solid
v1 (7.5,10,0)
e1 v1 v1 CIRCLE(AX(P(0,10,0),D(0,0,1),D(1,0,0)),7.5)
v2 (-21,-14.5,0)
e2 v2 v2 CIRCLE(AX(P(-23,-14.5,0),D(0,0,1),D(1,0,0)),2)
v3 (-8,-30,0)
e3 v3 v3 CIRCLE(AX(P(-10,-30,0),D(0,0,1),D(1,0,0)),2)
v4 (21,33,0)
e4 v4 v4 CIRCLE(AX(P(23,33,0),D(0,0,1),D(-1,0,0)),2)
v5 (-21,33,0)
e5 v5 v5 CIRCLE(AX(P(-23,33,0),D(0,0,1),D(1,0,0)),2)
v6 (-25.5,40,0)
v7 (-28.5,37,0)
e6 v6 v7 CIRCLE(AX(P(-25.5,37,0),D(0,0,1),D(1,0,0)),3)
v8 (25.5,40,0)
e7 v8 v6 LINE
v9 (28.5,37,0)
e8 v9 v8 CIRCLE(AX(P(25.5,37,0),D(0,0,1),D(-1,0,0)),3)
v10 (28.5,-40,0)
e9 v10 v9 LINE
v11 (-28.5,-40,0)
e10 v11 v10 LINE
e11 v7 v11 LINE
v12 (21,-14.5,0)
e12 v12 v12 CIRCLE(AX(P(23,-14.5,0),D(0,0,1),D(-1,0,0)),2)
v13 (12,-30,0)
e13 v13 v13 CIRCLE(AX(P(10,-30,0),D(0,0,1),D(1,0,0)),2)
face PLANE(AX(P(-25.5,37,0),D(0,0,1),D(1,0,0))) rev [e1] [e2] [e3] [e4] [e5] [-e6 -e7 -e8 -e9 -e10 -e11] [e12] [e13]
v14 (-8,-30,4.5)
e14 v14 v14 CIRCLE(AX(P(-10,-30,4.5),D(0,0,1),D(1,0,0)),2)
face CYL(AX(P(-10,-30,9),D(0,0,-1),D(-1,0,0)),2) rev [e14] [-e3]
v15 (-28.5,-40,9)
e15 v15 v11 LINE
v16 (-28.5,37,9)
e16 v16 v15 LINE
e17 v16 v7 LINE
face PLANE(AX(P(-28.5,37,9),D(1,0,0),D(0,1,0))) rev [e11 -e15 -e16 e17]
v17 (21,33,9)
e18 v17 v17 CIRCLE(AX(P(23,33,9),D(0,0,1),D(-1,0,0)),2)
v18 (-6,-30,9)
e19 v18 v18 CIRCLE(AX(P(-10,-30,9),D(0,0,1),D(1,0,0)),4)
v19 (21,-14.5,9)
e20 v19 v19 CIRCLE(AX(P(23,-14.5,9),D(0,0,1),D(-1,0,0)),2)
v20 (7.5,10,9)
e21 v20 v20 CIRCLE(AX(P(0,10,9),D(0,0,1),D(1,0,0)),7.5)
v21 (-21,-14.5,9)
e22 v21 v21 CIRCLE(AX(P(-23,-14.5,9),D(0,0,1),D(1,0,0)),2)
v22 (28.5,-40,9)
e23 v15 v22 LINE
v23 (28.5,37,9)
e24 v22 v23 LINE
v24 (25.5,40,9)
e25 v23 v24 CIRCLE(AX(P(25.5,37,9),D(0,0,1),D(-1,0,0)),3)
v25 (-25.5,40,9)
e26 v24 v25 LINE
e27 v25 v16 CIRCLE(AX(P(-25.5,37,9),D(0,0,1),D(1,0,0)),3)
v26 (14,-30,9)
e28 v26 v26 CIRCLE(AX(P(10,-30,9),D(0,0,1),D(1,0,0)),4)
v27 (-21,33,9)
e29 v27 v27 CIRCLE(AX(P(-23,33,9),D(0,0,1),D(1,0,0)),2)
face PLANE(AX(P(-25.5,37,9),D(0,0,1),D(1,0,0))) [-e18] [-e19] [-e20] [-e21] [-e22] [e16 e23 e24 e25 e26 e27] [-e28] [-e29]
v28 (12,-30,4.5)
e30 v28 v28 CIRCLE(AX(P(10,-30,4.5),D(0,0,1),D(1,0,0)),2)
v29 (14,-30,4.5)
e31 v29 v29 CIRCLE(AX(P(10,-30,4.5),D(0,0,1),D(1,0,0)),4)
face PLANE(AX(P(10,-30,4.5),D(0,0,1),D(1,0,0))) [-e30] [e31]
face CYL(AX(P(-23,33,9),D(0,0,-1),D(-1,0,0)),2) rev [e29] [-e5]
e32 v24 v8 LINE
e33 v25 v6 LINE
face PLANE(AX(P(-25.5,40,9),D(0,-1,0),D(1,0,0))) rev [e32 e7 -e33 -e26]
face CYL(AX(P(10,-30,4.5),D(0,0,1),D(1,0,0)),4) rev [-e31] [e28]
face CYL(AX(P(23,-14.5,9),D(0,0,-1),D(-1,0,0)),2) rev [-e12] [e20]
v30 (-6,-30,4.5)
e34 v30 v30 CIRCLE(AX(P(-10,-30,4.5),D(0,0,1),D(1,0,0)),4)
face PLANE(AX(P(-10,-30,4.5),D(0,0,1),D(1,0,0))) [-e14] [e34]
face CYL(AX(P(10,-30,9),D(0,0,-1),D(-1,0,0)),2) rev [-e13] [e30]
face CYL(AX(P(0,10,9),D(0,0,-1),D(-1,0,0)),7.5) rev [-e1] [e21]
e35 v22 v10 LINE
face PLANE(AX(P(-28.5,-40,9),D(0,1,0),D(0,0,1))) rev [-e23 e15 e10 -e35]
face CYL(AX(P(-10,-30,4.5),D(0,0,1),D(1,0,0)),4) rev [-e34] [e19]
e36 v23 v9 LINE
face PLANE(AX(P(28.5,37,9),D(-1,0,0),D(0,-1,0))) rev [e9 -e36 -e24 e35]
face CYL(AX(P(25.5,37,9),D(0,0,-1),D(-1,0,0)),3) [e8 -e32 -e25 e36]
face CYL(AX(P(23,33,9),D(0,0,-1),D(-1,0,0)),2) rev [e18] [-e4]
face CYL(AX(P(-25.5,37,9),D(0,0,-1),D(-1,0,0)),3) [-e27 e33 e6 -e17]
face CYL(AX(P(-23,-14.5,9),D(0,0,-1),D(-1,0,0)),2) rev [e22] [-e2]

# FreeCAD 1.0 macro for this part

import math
import FreeCAD as App
import Part
import Sketcher
Q = App.Units.Quantity

doc = App.newDocument("Part")
body = doc.addObject("PartDesign::Body", "Body")

# Sketch on XY plane
sketch1 = doc.addObject("Sketcher::SketchObject", "Sketch")
body.addObject(sketch1)
sketch1.AttachmentSupport = (doc.XY_Plane, [""])
sketch1.MapMode = "FlatFace"
sketch1.addGeometry([
    Part.LineSegment(App.Vector(25.5, 40, 0), App.Vector(-25.5, 40, 0)),  # 0
    Part.ArcOfCircle(Part.Circle(App.Vector(-25.5, 37, 0), App.Vector(0, 0, 1), 3), math.radians(90), math.radians(180)),  # 1
    Part.LineSegment(App.Vector(-28.5, 37, 0), App.Vector(-28.5, -40, 0)),  # 2
    Part.LineSegment(App.Vector(-28.5, -40, 0), App.Vector(28.5, -40, 0)),  # 3
    Part.LineSegment(App.Vector(28.5, -40, 0), App.Vector(28.5, 37, 0)),  # 4
    Part.ArcOfCircle(Part.Circle(App.Vector(25.5, 37, 0), App.Vector(0, 0, 1), 3), math.radians(0), math.radians(90)),  # 5
    Part.Circle(App.Vector(10, -30, 0), App.Vector(0, 0, 1), 2),  # 6
    Part.Circle(App.Vector(23, -14.5, 0), App.Vector(0, 0, 1), 2),  # 7
    Part.Circle(App.Vector(-10, -30, 0), App.Vector(0, 0, 1), 2),  # 8
    Part.Circle(App.Vector(-23, -14.5, 0), App.Vector(0, 0, 1), 2),  # 9
    Part.Circle(App.Vector(23, 33, 0), App.Vector(0, 0, 1), 2),  # 10
    Part.Circle(App.Vector(0, 10, 0), App.Vector(0, 0, 1), 7.5),  # 11
    Part.Circle(App.Vector(-23, 33, 0), App.Vector(0, 0, 1), 2),  # 12
], False)
sketch1.addConstraint([
    Sketcher.Constraint("Tangent", 0, 2, 1, 1),
    Sketcher.Constraint("Tangent", 1, 2, 2, 1),
    Sketcher.Constraint("Coincident", 2, 2, 3, 1),
    Sketcher.Constraint("Coincident", 3, 2, 4, 1),
    Sketcher.Constraint("Tangent", 4, 2, 5, 1),
    Sketcher.Constraint("Tangent", 5, 2, 0, 1),
    Sketcher.Constraint("Horizontal", 0),
    Sketcher.Constraint("Vertical", 2),
    Sketcher.Constraint("Horizontal", 3),
    Sketcher.Constraint("Vertical", 4),
    Sketcher.Constraint("Equal", 1, 5),
    Sketcher.Constraint("Equal", 6, 7),
    Sketcher.Constraint("Equal", 7, 8),
    Sketcher.Constraint("Equal", 8, 9),
    Sketcher.Constraint("Equal", 9, 10),
    Sketcher.Constraint("Equal", 10, 12),
    Sketcher.Constraint("Symmetric", 6, 3, 8, 3, -2),
    Sketcher.Constraint("Symmetric", 7, 3, 9, 3, -2),
    Sketcher.Constraint("Symmetric", 10, 3, 12, 3, -2),
    Sketcher.Constraint("PointOnObject", 11, 3, -2),
    Sketcher.Constraint("Vertical", 7, 3, 10, 3),
    Sketcher.Constraint("Diameter", 6, Q("4 mm")),
    Sketcher.Constraint("Diameter", 11, Q("15 mm")),
    Sketcher.Constraint("Radius", 1, Q("3 mm")),
    Sketcher.Constraint("DistanceX", 0, 2, 0, 1, Q("51 mm")),
    Sketcher.Constraint("DistanceY", 2, 2, 2, 1, Q("77 mm")),
    Sketcher.Constraint("DistanceY", -1, 1, 1, 3, Q("37 mm")),
    Sketcher.Constraint("DistanceX", -1, 1, 6, 3, Q("10 mm")),
    Sketcher.Constraint("DistanceY", 6, 3, -1, 1, Q("30 mm")),
    Sketcher.Constraint("DistanceX", -1, 1, 7, 3, Q("23 mm")),
    Sketcher.Constraint("DistanceY", -1, 1, 10, 3, Q("33 mm")),
    Sketcher.Constraint("DistanceY", -1, 1, 11, 3, Q("10 mm")),
    Sketcher.Constraint("DistanceX", 1, 3, -1, 1, Q("25.5 mm")),
    Sketcher.Constraint("DistanceY", 7, 3, -1, 1, Q("14.5 mm")),
])
pad1 = doc.addObject("PartDesign::Pad", "Pad")
body.addObject(pad1)
pad1.Profile = sketch1
pad1.Length = 9

# Sketch on XY plane
sketch2 = doc.addObject("Sketcher::SketchObject", "Sketch001")
body.addObject(sketch2)
sketch2.AttachmentSupport = (doc.XY_Plane, [""])
sketch2.MapMode = "FlatFace"
sketch2.AttachmentOffset = App.Placement(App.Vector(0, 0, 9), App.Rotation())
sketch2.addGeometry([
    Part.Circle(App.Vector(-10, -30, 0), App.Vector(0, 0, 1), 4),
    Part.Circle(App.Vector(10, -30, 0), App.Vector(0, 0, 1), 4),
], False)
sketch2.addConstraint([
    Sketcher.Constraint("Equal", 0, 1),
    Sketcher.Constraint("Symmetric", 0, 3, 1, 3, -2),
    Sketcher.Constraint("Diameter", 0, Q("8 mm")),
    Sketcher.Constraint("DistanceX", 0, 3, -1, 1, Q("10 mm")),
    Sketcher.Constraint("DistanceY", 0, 3, -1, 1, Q("30 mm")),
])
pocket1 = doc.addObject("PartDesign::Pocket", "Pocket")
body.addObject(pocket1)
pocket1.Profile = sketch2
pocket1.Length = 4.5

doc.recompute()
